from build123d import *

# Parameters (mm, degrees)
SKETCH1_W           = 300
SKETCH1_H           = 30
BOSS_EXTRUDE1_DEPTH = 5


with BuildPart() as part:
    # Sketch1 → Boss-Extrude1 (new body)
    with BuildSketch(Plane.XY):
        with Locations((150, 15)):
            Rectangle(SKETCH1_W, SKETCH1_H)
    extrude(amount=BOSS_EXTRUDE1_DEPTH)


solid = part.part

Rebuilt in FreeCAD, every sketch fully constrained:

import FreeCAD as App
import Part
import Sketcher
from FreeCAD import Vector

doc = App.newDocument("Part")
body = doc.addObject("PartDesign::Body", "Body")

# Sketch on XY plane
sketch1 = doc.addObject("Sketcher::SketchObject", "Sketch")
body.addObject(sketch1)
sketch1.AttachmentSupport = (doc.XY_Plane, [""])
sketch1.MapMode = "FlatFace"
sketch1.addGeometry(Part.LineSegment(Vector(0, 30, 0), Vector(0, 0, 0)), False)
sketch1.addGeometry(Part.LineSegment(Vector(0, 0, 0), Vector(300, 0, 0)), False)
sketch1.addGeometry(Part.LineSegment(Vector(300, 0, 0), Vector(300, 30, 0)), False)
sketch1.addGeometry(Part.LineSegment(Vector(300, 30, 0), Vector(0, 30, 0)), False)
sketch1.addConstraint(Sketcher.Constraint("Coincident", 0, 2, 1, 1))
sketch1.addConstraint(Sketcher.Constraint("Coincident", 1, 2, 2, 1))
sketch1.addConstraint(Sketcher.Constraint("Coincident", 2, 2, 3, 1))
sketch1.addConstraint(Sketcher.Constraint("Coincident", 3, 2, 0, 1))
sketch1.addConstraint(Sketcher.Constraint("Vertical", 0))
sketch1.addConstraint(Sketcher.Constraint("Horizontal", 1))
sketch1.addConstraint(Sketcher.Constraint("Vertical", 2))
sketch1.addConstraint(Sketcher.Constraint("Horizontal", 3))
sketch1.addConstraint(Sketcher.Constraint("Coincident", 0, 2, -1, 1))
sketch1.addConstraint(Sketcher.Constraint("DistanceX", 1, 1, 1, 2, 300.0))
sketch1.addConstraint(Sketcher.Constraint("DistanceY", 0, 2, 0, 1, 30.0))
pad1 = doc.addObject("PartDesign::Pad", "Pad")
body.addObject(pad1)
pad1.Profile = sketch1
pad1.Length = 5

doc.recompute()
